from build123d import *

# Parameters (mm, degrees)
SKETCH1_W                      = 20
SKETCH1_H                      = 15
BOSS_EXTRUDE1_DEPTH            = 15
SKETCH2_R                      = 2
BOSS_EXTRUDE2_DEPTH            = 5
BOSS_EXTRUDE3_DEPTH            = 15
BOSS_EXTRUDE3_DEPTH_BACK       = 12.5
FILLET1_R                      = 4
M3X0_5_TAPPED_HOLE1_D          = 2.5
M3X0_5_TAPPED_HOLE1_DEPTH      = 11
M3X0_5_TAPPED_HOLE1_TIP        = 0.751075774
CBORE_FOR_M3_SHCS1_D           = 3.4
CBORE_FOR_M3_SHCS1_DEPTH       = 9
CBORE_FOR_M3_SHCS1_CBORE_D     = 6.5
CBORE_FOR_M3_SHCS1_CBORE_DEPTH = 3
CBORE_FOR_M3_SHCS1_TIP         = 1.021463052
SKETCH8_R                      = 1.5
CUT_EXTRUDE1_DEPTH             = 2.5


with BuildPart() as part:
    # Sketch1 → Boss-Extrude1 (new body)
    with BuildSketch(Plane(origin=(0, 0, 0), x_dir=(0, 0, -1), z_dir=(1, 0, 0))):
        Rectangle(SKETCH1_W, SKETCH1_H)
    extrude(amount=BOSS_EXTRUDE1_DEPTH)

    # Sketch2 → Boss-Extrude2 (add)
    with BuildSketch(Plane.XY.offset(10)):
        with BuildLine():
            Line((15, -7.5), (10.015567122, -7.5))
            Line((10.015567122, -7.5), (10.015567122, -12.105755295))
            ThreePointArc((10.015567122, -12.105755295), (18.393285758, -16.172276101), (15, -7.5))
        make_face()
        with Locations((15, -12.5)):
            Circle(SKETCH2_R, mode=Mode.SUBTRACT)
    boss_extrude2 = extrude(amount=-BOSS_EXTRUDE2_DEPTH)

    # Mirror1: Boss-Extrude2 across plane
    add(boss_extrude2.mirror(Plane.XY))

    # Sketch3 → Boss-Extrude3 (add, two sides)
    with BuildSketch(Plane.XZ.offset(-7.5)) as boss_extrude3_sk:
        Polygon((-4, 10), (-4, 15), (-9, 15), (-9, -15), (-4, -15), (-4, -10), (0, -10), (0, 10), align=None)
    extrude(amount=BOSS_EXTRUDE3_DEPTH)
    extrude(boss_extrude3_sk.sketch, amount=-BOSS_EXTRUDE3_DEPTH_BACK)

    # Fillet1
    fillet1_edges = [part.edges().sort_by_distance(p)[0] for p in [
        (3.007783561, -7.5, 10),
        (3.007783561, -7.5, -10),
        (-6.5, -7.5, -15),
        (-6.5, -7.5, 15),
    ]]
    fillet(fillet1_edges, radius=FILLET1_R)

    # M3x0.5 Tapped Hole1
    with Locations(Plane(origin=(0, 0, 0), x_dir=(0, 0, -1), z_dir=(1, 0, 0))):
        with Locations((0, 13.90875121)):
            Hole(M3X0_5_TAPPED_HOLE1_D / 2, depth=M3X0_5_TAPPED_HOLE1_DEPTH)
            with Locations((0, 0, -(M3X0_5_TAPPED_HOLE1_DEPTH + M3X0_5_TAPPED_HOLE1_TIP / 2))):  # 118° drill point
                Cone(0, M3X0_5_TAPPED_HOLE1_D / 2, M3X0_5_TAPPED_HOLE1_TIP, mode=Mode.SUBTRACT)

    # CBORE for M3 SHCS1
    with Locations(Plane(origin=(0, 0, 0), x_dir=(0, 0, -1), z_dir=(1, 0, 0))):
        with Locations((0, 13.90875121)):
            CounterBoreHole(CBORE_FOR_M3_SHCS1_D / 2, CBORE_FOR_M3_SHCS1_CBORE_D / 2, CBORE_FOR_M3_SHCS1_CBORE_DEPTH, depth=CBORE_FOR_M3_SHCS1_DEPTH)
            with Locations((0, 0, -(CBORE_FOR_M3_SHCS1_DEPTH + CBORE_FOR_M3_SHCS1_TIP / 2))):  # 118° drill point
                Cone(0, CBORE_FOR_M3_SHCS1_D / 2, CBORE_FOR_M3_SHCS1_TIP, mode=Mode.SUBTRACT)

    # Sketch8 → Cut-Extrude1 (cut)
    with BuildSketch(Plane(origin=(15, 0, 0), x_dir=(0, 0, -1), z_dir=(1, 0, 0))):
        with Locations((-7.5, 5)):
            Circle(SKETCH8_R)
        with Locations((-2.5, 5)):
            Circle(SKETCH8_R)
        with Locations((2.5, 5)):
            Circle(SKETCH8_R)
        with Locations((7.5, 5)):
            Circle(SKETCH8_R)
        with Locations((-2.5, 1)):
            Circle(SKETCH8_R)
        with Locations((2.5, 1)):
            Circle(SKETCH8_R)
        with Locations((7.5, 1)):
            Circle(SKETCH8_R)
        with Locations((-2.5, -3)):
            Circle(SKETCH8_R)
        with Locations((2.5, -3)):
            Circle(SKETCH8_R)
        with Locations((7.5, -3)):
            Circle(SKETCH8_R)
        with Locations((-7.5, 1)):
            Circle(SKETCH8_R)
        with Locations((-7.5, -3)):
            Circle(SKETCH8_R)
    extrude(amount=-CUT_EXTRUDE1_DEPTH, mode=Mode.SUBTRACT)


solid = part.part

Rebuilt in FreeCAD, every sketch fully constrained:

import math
import FreeCAD as App
import Part
import Sketcher
from FreeCAD import Vector


def edges_at(feature, points):
    """Names of the edges that pass closest to the given points."""
    edges = feature.Shape.Edges
    near = lambda p: min(range(len(edges)), key=lambda i: edges[i].distToShape(Part.Vertex(*p))[0])
    return sorted({f"Edge{near(p) + 1}" for p in points})


def add_polygon(sketch, points):
    """Adds a closed chain of lines whose ends are joined by coincident constraints."""
    first, n = sketch.GeometryCount, len(points)
    for a, b in zip(points, points[1:] + points[:1]):
        sketch.addGeometry(Part.LineSegment(App.Vector(*a, 0), App.Vector(*b, 0)), False)
    for i in range(n):
        sketch.addConstraint(Sketcher.Constraint("Coincident", first + i, 2, first + (i + 1) % n, 1))

doc = App.newDocument("Part")
body = doc.addObject("PartDesign::Body", "Body")

sketch1 = body.newObject("Sketcher::SketchObject", "Sketch")
sketch1.AttachmentSupport = (doc.getObject("YZ_Plane"), [""])
sketch1.MapMode = "FlatFace"
add_polygon(sketch1, [(8, 10), (-8, 10), (-8, -10), (8, -10)])
sketch1.addConstraint([
    Sketcher.Constraint("Horizontal", 0),
    Sketcher.Constraint("Vertical", 1),
    Sketcher.Constraint("Horizontal", 2),
    Sketcher.Constraint("Vertical", 3),
    Sketcher.Constraint("Symmetric", 0, 2, 2, 2, -1, 1),
    Sketcher.Constraint("DistanceX", 0, 2, 0, 1, 15.0),
    Sketcher.Constraint("DistanceY", 1, 2, 1, 1, 20.0),
])
pad1 = body.newObject("PartDesign::Pad", "Pad")
pad1.Profile = sketch1
pad1.Length = 15

sketch2 = body.newObject("Sketcher::SketchObject", "Sketch001")
sketch2.AttachmentSupport = (doc.getObject("XY_Plane"), [""])
sketch2.MapMode = "FlatFace"
sketch2.AttachmentOffset = App.Placement(Vector(0, 0, 10), App.Rotation())
sketch2.addGeometry([
    Part.LineSegment(Vector(15, -7.5, 0), Vector(10, -7.5, 0)),
    Part.LineSegment(Vector(10, -7.5, 0), Vector(10, -12.1, 0)),
    Part.ArcOfCircle(Part.Circle(Vector(15, -12.5, 0), Vector(0, 0, 1), 5), math.radians(175), math.radians(450)),
    Part.Circle(Vector(15, -12.5, 0), Vector(0, 0, 1), 2),
], False)
sketch2.addConstraint([
    Sketcher.Constraint("Coincident", 0, 2, 1, 1),
    Sketcher.Constraint("Coincident", 1, 2, 2, 1),
    Sketcher.Constraint("Tangent", 2, 2, 0, 1),
    Sketcher.Constraint("Horizontal", 0),
    Sketcher.Constraint("Vertical", 1),
    Sketcher.Constraint("Coincident", 3, 3, 2, 3),
    Sketcher.Constraint("Diameter", 3, 4.0),
    Sketcher.Constraint("Radius", 2, 5.0),
    Sketcher.Constraint("DistanceX", -1, 1, 2, 3, 15.0),
    Sketcher.Constraint("DistanceY", 2, 3, -1, 1, 12.5),
    Sketcher.Constraint("DistanceX", 0, 2, 0, 1, 4.984433),
])
pad2 = body.newObject("PartDesign::Pad", "Pad001")
pad2.Profile = sketch2
pad2.Length = 5
pad2.Reversed = True
doc.recompute()

mirrored = body.newObject("PartDesign::Mirrored", "Mirrored")
mirrored.Originals = [pad2]
mirrored.MirrorPlane = (doc.getObject("XY_Plane"), [""])
body.Tip = mirrored

sketch3 = body.newObject("Sketcher::SketchObject", "Sketch002")
sketch3.AttachmentSupport = (doc.getObject("XZ_Plane"), [""])
sketch3.MapMode = "FlatFace"
sketch3.AttachmentOffset = App.Placement(Vector(0, 0, -7.5), App.Rotation())
add_polygon(sketch3, [(-4, 10), (-4, 15), (-9, 15), (-9, -15), (-4, -15), (-4, -10), (0, -10), (0, 10)])
sketch3.addConstraint([
    Sketcher.Constraint("Vertical", 0),
    Sketcher.Constraint("Horizontal", 1),
    Sketcher.Constraint("Vertical", 2),
    Sketcher.Constraint("Horizontal", 3),
    Sketcher.Constraint("Vertical", 4),
    Sketcher.Constraint("Horizontal", 5),
    Sketcher.Constraint("Vertical", 6),
    Sketcher.Constraint("Horizontal", 7),
    Sketcher.Constraint("Symmetric", 5, 2, 6, 2, -1, 1),
    Sketcher.Constraint("Symmetric", 0, 2, 3, 2, -1),
    Sketcher.Constraint("Equal", 3, 0),
    Sketcher.Constraint("DistanceX", 1, 2, 1, 1, 5.0),
    Sketcher.Constraint("DistanceX", 5, 1, 5, 2, 4.0),
    Sketcher.Constraint("DistanceY", 2, 2, 2, 1, 30.0),
])
pad3 = body.newObject("PartDesign::Pad", "Pad002")
pad3.Profile = sketch3
pad3.Type = "TwoLengths"
pad3.Length = 15
pad3.Length2 = 12.5
doc.recompute()

fillet = body.newObject("PartDesign::Fillet", "Fillet")
fillet.Base = (pad3, edges_at(pad3, [
    (3.008, -7.5, 10),
    (3.008, -7.5, -10),
    (-6.5, -7.5, -15),
    (-6.5, -7.5, 15),
]))
fillet.Radius = 4

sketch4 = body.newObject("Sketcher::SketchObject", "Sketch003")
sketch4.AttachmentSupport = (doc.getObject("YZ_Plane"), [""])
sketch4.MapMode = "FlatFace"
sketch4.addGeometry(Part.Circle(Vector(13.9, 0, 0), Vector(0, 0, 1), 1.2), False)
sketch4.addConstraint([
    Sketcher.Constraint("PointOnObject", 0, 3, -1),
    Sketcher.Constraint("Diameter", 0, 2.5),
    Sketcher.Constraint("DistanceX", -1, 1, 0, 3, 13.908751),
])
doc.recompute()
hole = body.newObject("PartDesign::Hole", "Hole")
hole.Profile = sketch4
hole.ThreadType = "None"
hole.Diameter = 2.5
hole.DepthType = "Dimension"
hole.Depth = 11
hole.DrillPoint = "Angled"
hole.DrillPointAngle = 118

sketch5 = body.newObject("Sketcher::SketchObject", "Sketch004")
sketch5.AttachmentSupport = (doc.getObject("YZ_Plane"), [""])
sketch5.MapMode = "FlatFace"
sketch5.addGeometry(Part.Circle(Vector(13.9, 0, 0), Vector(0, 0, 1), 1.7), False)
sketch5.addConstraint([
    Sketcher.Constraint("PointOnObject", 0, 3, -1),
    Sketcher.Constraint("Diameter", 0, 3.4),
    Sketcher.Constraint("DistanceX", -1, 1, 0, 3, 13.908751),
])
doc.recompute()
hole2 = body.newObject("PartDesign::Hole", "Hole001")
hole2.Profile = sketch5
hole2.ThreadType = "None"
hole2.Diameter = 3.4
hole2.DepthType = "Dimension"
hole2.Depth = 9
hole2.DrillPoint = "Angled"
hole2.DrillPointAngle = 118
hole2.HoleCutType = "Counterbore"
hole2.HoleCutDiameter = 6.5
hole2.HoleCutDepth = 3

sketch6 = body.newObject("Sketcher::SketchObject", "Sketch005")
sketch6.AttachmentSupport = (doc.getObject("YZ_Plane"), [""])
sketch6.MapMode = "FlatFace"
sketch6.AttachmentOffset = App.Placement(Vector(0, 0, 15), App.Rotation())
sketch6.addGeometry([
    Part.Circle(Vector(5, 7.5, 0), Vector(0, 0, 1), 1.5),
    Part.Circle(Vector(5, 2.5, 0), Vector(0, 0, 1), 1.5),
    Part.Circle(Vector(5, -2.5, 0), Vector(0, 0, 1), 1.5),
    Part.Circle(Vector(5, -7.5, 0), Vector(0, 0, 1), 1.5),
    Part.Circle(Vector(1, 2.5, 0), Vector(0, 0, 1), 1.5),
    Part.Circle(Vector(1, -2.5, 0), Vector(0, 0, 1), 1.5),
    Part.Circle(Vector(1, -7.5, 0), Vector(0, 0, 1), 1.5),
    Part.Circle(Vector(-3, 2.5, 0), Vector(0, 0, 1), 1.5),
    Part.Circle(Vector(-3, -2.5, 0), Vector(0, 0, 1), 1.5),
    Part.Circle(Vector(-3, -7.5, 0), Vector(0, 0, 1), 1.5),
    Part.Circle(Vector(1, 7.5, 0), Vector(0, 0, 1), 1.5),
    Part.Circle(Vector(-3, 7.5, 0), Vector(0, 0, 1), 1.5),
], False)
sketch6.addConstraint([
    Sketcher.Constraint("Equal", 0, 1),
    Sketcher.Constraint("Equal", 1, 2),
    Sketcher.Constraint("Equal", 2, 3),
    Sketcher.Constraint("Equal", 3, 4),
    Sketcher.Constraint("Equal", 4, 5),
    Sketcher.Constraint("Equal", 5, 6),
    Sketcher.Constraint("Equal", 6, 7),
    Sketcher.Constraint("Equal", 7, 8),
    Sketcher.Constraint("Equal", 8, 9),
    Sketcher.Constraint("Equal", 9, 10),
    Sketcher.Constraint("Equal", 10, 11),
    Sketcher.Constraint("Symmetric", 1, 3, 2, 3, -1),
    Sketcher.Constraint("Symmetric", 0, 3, 3, 3, -1),
    Sketcher.Constraint("Symmetric", 4, 3, 5, 3, -1),
    Sketcher.Constraint("Symmetric", 7, 3, 8, 3, -1),
    Sketcher.Constraint("Symmetric", 6, 3, 10, 3, -1),
    Sketcher.Constraint("Symmetric", 9, 3, 11, 3, -1),
    Sketcher.Constraint("Horizontal", 1, 3, 4, 3),
    Sketcher.Constraint("Horizontal", 3, 3, 6, 3),
    Sketcher.Constraint("Horizontal", 4, 3, 7, 3),
    Sketcher.Constraint("Horizontal", 6, 3, 9, 3),
    Sketcher.Constraint("Vertical", 0, 3, 1, 3),
    Sketcher.Constraint("Vertical", 5, 3, 6, 3),
    Sketcher.Constraint("Vertical", 8, 3, 9, 3),
    Sketcher.Constraint("Diameter", 0, 3.0),
    Sketcher.Constraint("DistanceX", -1, 1, 0, 3, 5.0),
    Sketcher.Constraint("DistanceX", -1, 1, 4, 3, 1.0),
    Sketcher.Constraint("DistanceX", 7, 3, -1, 1, 3.0),
    Sketcher.Constraint("DistanceY", 1, 3, 0, 3, 5.0),
    Sketcher.Constraint("DistanceY", 2, 3, 1, 3, 5.0),
])
pocket1 = body.newObject("PartDesign::Pocket", "Pocket")
pocket1.Profile = sketch6
pocket1.Length = 2.5

doc.recompute()
